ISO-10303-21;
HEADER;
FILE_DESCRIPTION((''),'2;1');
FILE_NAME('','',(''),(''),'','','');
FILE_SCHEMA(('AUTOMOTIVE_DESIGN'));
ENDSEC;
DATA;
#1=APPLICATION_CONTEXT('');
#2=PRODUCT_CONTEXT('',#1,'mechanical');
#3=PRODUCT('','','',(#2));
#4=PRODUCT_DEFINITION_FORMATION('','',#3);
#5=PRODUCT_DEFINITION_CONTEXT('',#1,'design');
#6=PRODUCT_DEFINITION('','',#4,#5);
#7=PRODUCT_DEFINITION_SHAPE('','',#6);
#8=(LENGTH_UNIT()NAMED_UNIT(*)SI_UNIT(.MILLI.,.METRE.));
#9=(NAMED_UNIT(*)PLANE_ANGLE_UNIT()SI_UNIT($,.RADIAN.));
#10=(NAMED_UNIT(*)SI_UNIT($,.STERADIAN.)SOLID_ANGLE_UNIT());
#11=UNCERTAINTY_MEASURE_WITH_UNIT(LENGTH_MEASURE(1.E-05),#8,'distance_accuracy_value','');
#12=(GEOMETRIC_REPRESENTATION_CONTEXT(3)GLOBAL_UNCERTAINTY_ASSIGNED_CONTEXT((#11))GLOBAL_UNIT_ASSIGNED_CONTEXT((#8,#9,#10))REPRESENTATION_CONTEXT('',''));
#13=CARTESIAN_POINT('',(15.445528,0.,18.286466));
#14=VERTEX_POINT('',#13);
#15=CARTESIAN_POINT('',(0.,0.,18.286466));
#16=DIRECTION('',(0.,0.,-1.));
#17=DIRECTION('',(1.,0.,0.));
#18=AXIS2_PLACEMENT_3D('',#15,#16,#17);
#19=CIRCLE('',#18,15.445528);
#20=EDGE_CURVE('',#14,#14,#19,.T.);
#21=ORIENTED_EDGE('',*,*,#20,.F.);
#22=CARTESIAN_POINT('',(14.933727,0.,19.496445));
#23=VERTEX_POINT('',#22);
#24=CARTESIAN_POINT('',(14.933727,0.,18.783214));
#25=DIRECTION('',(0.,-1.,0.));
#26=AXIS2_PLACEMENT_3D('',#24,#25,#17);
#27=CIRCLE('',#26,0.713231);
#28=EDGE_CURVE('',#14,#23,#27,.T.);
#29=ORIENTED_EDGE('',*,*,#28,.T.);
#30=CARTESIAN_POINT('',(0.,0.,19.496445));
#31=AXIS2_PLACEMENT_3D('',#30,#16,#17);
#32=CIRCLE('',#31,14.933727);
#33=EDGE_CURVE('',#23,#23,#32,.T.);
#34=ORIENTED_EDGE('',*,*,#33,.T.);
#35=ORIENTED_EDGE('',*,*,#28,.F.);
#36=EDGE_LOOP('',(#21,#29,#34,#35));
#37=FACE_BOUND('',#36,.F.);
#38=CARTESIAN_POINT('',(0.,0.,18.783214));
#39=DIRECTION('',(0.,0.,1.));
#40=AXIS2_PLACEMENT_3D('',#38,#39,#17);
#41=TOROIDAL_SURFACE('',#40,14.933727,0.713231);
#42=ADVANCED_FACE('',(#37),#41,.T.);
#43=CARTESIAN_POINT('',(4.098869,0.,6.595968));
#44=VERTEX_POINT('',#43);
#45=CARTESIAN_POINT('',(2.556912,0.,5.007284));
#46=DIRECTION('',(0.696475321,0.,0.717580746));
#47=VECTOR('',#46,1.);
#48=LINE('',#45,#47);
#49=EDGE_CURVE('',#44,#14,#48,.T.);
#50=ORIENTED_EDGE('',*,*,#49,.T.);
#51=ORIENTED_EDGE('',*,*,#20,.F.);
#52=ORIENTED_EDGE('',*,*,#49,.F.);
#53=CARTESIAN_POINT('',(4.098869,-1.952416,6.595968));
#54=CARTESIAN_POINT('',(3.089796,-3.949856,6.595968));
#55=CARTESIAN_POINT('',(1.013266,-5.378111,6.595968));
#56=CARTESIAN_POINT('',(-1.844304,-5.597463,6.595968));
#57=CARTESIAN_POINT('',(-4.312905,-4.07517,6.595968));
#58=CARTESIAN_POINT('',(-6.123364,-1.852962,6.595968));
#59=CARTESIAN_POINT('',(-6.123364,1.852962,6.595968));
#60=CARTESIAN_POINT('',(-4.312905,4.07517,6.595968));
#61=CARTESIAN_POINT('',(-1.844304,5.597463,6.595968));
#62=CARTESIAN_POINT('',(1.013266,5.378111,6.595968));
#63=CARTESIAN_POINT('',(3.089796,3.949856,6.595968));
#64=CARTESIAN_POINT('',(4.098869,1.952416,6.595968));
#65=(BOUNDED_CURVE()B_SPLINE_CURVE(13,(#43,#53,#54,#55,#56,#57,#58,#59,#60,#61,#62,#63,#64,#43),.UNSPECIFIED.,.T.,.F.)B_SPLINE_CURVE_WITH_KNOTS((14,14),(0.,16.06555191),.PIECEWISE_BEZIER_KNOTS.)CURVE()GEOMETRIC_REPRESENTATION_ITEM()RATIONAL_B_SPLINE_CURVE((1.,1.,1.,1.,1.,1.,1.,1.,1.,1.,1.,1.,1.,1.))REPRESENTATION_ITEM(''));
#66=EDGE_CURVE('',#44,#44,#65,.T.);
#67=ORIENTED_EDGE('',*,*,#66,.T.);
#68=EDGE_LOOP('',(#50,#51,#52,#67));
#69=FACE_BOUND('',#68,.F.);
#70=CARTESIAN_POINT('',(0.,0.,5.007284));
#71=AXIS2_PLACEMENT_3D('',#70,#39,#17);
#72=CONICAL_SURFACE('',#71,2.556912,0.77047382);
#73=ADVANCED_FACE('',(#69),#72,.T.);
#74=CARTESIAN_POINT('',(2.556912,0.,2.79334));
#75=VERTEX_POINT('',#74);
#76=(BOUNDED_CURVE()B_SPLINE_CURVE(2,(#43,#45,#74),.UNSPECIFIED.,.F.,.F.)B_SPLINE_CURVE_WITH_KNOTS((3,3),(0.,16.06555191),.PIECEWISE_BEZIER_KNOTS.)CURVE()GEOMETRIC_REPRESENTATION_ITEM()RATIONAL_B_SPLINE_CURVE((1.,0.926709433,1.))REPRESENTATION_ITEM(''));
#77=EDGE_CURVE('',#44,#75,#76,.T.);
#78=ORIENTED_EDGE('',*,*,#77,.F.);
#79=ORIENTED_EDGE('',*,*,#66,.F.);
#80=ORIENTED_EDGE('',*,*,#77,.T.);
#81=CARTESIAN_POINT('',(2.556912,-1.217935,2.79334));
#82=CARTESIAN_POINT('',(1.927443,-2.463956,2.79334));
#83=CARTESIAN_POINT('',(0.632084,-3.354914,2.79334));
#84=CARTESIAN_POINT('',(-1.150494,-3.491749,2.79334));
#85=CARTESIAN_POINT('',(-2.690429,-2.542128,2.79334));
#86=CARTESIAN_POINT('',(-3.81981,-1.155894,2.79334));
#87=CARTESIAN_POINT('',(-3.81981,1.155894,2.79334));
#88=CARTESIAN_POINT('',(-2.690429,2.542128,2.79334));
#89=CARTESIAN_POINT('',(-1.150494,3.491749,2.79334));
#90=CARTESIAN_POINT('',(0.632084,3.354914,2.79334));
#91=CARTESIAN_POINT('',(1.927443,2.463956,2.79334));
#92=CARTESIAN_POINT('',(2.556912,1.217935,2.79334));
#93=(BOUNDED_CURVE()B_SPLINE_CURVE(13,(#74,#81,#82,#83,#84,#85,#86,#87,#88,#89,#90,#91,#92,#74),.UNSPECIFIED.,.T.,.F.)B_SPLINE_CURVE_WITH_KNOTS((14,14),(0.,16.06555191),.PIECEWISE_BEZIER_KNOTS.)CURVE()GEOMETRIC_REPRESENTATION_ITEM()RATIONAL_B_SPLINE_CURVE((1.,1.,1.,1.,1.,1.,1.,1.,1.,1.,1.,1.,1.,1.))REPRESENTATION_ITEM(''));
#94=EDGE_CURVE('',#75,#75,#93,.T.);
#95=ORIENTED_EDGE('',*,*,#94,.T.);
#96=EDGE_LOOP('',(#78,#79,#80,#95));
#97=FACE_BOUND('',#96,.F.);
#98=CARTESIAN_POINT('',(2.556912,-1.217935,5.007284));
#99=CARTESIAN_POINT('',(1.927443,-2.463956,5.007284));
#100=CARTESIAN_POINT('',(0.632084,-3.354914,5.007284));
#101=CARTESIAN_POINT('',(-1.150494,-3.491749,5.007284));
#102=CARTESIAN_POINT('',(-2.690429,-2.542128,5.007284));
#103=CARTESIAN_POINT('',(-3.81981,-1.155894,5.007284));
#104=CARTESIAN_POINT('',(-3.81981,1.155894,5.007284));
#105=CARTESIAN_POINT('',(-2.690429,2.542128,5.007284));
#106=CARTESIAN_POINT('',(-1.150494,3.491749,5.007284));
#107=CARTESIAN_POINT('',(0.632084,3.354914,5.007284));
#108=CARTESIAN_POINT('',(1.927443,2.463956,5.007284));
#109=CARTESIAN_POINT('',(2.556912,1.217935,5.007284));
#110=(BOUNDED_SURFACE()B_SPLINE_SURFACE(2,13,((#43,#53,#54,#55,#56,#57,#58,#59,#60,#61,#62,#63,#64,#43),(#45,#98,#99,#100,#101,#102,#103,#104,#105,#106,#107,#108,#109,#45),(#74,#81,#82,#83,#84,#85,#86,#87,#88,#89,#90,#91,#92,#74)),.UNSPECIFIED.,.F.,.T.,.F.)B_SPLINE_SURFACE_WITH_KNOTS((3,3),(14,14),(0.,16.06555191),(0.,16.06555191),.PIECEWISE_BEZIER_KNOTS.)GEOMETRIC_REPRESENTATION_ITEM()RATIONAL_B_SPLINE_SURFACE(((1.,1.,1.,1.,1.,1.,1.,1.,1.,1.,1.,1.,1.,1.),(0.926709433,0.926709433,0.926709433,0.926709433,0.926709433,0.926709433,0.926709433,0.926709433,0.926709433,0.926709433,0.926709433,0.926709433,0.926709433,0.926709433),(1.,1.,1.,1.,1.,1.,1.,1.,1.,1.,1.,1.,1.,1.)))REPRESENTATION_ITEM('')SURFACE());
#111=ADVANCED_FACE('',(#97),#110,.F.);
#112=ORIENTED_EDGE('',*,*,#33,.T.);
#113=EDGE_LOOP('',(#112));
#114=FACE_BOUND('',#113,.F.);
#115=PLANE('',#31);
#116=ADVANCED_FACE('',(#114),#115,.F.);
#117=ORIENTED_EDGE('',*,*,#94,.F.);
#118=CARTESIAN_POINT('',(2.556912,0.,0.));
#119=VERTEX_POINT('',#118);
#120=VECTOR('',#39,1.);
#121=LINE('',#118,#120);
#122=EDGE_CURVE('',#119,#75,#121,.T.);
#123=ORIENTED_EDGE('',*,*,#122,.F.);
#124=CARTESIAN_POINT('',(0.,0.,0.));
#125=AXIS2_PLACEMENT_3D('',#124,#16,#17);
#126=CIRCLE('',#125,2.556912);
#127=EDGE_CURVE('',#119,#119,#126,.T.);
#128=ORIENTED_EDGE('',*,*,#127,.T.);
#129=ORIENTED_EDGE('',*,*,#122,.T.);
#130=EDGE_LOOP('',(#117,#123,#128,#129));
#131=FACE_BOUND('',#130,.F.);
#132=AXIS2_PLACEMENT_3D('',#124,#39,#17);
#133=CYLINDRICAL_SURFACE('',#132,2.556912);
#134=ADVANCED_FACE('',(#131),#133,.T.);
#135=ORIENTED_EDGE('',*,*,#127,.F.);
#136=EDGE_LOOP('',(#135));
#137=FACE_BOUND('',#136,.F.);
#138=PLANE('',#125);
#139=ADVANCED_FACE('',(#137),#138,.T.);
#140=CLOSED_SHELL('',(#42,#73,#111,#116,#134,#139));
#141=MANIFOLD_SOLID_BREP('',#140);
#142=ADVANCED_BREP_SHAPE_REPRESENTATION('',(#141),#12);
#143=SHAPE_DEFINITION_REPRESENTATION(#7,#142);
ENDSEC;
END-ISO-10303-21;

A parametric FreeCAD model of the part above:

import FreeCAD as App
import Part
import Sketcher


def edges_at(feature, points):
    """Names of the edges that pass closest to the given points."""
    edges = feature.Shape.Edges
    near = lambda p: min(range(len(edges)), key=lambda i: edges[i].distToShape(Part.Vertex(*p))[0])
    return sorted({f"Edge{near(p) + 1}" for p in points})


def add_polygon(sketch, points):
    """Adds a closed chain of lines whose ends are joined by coincident constraints."""
    first, n = sketch.GeometryCount, len(points)
    for a, b in zip(points, points[1:] + points[:1]):
        sketch.addGeometry(Part.LineSegment(App.Vector(*a, 0), App.Vector(*b, 0)), False)
    for i in range(n):
        sketch.addConstraint(Sketcher.Constraint("Coincident", first + i, 2, first + (i + 1) % n, 1))

doc = App.newDocument("Part")
body = doc.addObject("PartDesign::Body", "Body")

sketch1 = doc.addObject("Sketcher::SketchObject", "Sketch")
body.addObject(sketch1)
sketch1.AttachmentSupport = (doc.XZ_Plane, [""])
sketch1.MapMode = "FlatFace"
add_polygon(sketch1, [(0, 19.496445), (0, 0), (2.556912, 0), (2.556912, 5.007284), (16.619919, 19.496445)])
sketch1.addConstraint(Sketcher.Constraint("Vertical", 0))
sketch1.addConstraint(Sketcher.Constraint("Horizontal", 1))
sketch1.addConstraint(Sketcher.Constraint("Vertical", 2))
sketch1.addConstraint(Sketcher.Constraint("Horizontal", 4))
sketch1.addConstraint(Sketcher.Constraint("Coincident", 0, 2, -1, 1))
sketch1.addConstraint(Sketcher.Constraint("DistanceX", 4, 2, 4, 1, 16.619919))
sketch1.addConstraint(Sketcher.Constraint("Distance", 3, 20.19168))
sketch1.addConstraint(Sketcher.Constraint("DistanceX", 1, 1, 1, 2, 2.556912))
sketch1.addConstraint(Sketcher.Constraint("DistanceY", 0, 2, 0, 1, 19.496445))
revolution = doc.addObject("PartDesign::Revolution", "Revolution")
body.addObject(revolution)
revolution.Profile = sketch1
revolution.ReferenceAxis = (sketch1, ["V_Axis"])
revolution.Angle = 360
doc.recompute()

fillet = doc.addObject("PartDesign::Fillet", "Fillet")
body.addObject(fillet)
fillet.Base = (revolution, edges_at(revolution, [(-16.62, 0, 19.496)]))
fillet.Radius = 0.713231
doc.recompute()

fillet2 = doc.addObject("PartDesign::Fillet", "Fillet001")
body.addObject(fillet2)
fillet2.Base = (fillet, edges_at(fillet, [(-2.557, 0, 5.007)]))
fillet2.Radius = 5.459817

doc.recompute()
